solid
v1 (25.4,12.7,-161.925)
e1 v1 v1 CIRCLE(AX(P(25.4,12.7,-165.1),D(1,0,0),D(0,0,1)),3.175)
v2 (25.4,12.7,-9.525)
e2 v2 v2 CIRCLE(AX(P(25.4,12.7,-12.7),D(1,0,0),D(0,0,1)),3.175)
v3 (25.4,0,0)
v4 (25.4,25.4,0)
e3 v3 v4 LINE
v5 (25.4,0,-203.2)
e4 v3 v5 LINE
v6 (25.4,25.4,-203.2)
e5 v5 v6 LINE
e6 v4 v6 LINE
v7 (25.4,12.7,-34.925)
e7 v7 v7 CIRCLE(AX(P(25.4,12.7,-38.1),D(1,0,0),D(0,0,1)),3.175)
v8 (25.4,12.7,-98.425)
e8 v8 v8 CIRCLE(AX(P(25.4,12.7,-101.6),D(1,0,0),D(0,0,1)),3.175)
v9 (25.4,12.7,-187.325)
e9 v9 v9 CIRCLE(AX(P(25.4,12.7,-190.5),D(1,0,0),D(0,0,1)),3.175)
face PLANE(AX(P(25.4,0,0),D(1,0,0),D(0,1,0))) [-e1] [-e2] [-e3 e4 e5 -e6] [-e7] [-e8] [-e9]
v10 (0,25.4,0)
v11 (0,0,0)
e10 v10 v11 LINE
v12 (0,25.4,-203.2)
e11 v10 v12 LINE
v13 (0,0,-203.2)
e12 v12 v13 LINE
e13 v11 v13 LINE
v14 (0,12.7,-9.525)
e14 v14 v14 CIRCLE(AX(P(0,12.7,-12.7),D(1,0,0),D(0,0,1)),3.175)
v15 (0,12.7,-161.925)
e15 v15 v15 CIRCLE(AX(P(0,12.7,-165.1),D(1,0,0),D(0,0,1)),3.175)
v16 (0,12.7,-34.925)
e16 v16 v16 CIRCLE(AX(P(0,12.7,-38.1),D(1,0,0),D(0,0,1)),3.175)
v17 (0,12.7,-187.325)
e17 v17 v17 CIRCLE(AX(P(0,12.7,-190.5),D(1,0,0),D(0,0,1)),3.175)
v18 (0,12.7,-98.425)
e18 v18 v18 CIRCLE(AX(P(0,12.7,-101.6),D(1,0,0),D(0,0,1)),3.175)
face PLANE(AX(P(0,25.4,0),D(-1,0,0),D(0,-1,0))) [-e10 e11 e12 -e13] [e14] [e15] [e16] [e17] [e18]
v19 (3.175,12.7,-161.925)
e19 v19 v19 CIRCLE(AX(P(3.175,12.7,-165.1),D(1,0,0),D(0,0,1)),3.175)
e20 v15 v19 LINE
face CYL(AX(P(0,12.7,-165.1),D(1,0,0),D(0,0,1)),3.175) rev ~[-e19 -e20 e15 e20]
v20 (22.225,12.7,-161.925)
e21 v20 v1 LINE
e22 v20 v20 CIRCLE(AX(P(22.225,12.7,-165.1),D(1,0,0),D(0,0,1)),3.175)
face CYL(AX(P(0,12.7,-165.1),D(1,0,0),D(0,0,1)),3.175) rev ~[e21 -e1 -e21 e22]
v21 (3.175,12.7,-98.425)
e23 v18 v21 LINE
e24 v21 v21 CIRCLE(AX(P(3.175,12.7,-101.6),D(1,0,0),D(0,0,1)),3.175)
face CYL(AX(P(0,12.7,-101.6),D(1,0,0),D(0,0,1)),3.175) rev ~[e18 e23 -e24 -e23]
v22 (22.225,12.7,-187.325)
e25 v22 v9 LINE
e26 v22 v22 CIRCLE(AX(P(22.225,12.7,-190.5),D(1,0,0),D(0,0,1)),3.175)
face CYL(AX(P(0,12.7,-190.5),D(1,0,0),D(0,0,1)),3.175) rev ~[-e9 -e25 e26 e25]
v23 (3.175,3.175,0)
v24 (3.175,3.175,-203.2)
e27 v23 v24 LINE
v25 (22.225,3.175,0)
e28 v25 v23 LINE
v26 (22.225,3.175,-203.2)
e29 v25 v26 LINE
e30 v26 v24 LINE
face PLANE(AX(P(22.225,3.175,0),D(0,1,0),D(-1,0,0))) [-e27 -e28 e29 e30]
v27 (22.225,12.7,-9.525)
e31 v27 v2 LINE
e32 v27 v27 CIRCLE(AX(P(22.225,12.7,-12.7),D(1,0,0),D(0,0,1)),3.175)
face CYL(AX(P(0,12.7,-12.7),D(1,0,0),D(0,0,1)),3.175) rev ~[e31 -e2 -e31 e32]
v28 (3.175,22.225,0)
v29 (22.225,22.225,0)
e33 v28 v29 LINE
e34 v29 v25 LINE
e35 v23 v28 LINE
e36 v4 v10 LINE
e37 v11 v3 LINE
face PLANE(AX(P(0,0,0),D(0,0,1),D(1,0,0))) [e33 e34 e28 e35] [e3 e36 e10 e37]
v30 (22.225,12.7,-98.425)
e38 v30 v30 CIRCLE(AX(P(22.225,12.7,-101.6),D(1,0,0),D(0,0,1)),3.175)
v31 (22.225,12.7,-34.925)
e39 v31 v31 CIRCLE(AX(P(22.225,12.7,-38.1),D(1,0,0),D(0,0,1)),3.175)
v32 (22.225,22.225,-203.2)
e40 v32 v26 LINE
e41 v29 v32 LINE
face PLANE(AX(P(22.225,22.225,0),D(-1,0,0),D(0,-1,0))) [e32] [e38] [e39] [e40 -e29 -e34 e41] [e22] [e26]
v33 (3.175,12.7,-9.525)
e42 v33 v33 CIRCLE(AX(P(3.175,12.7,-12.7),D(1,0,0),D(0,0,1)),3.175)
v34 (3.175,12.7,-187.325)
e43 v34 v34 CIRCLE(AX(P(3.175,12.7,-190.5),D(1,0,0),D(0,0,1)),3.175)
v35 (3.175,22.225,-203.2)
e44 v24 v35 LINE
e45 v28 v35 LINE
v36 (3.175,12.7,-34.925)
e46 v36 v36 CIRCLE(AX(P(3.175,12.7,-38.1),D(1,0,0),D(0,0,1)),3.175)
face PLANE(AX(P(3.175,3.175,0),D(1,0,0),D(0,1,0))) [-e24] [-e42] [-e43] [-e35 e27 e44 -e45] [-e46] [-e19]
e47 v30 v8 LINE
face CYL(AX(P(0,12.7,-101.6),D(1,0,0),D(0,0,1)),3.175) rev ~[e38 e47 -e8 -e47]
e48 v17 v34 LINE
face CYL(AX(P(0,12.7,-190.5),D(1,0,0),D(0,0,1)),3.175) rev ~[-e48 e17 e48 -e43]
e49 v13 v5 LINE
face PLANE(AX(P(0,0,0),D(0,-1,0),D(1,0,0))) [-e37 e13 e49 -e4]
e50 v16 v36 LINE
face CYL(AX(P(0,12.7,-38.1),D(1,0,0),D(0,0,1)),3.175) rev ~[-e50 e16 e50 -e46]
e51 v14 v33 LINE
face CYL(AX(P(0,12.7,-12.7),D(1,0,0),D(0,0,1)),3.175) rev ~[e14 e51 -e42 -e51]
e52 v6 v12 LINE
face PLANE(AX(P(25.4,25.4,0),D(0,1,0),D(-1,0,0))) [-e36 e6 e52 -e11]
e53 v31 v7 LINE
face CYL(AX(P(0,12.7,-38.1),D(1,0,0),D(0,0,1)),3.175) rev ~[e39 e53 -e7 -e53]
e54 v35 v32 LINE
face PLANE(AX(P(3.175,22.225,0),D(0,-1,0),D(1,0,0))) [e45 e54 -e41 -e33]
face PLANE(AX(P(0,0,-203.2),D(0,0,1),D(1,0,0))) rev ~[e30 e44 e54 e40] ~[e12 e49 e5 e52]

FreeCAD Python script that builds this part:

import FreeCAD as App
import Part
import Sketcher

V = App.Vector
Q = App.Units.Quantity

doc = App.newDocument("Part")
body = doc.addObject("PartDesign::Body", "Body")

# Sketch on XY plane
sketch1 = doc.addObject("Sketcher::SketchObject", "Sketch")
body.addObject(sketch1)
sketch1.AttachmentSupport = (doc.XY_Plane, [""])
sketch1.MapMode = "FlatFace"
sketch1.addGeometry(Part.LineSegment(V(0, 25, 0), V(0, 0, 0)), False)
sketch1.addGeometry(Part.LineSegment(V(0, 0, 0), V(25, 0, 0)), False)
sketch1.addGeometry(Part.LineSegment(V(25, 0, 0), V(25, 25, 0)), False)
sketch1.addGeometry(Part.LineSegment(V(25, 25, 0), V(0, 25, 0)), False)
sketch1.addGeometry(Part.LineSegment(V(3, 3, 0), V(3, 22, 0)), False)
sketch1.addGeometry(Part.LineSegment(V(3, 22, 0), V(22, 22, 0)), False)
sketch1.addGeometry(Part.LineSegment(V(22, 22, 0), V(22, 3, 0)), False)
sketch1.addGeometry(Part.LineSegment(V(22, 3, 0), V(3, 3, 0)), False)
sketch1.addConstraint(Sketcher.Constraint("Coincident", 0, 2, 1, 1))
sketch1.addConstraint(Sketcher.Constraint("Coincident", 1, 2, 2, 1))
sketch1.addConstraint(Sketcher.Constraint("Coincident", 2, 2, 3, 1))
sketch1.addConstraint(Sketcher.Constraint("Coincident", 3, 2, 0, 1))
sketch1.addConstraint(Sketcher.Constraint("Coincident", 4, 2, 5, 1))
sketch1.addConstraint(Sketcher.Constraint("Coincident", 5, 2, 6, 1))
sketch1.addConstraint(Sketcher.Constraint("Coincident", 6, 2, 7, 1))
sketch1.addConstraint(Sketcher.Constraint("Coincident", 7, 2, 4, 1))
sketch1.addConstraint(Sketcher.Constraint("Vertical", 0))
sketch1.addConstraint(Sketcher.Constraint("Horizontal", 1))
sketch1.addConstraint(Sketcher.Constraint("Vertical", 2))
sketch1.addConstraint(Sketcher.Constraint("Horizontal", 3))
sketch1.addConstraint(Sketcher.Constraint("Vertical", 4))
sketch1.addConstraint(Sketcher.Constraint("Horizontal", 5))
sketch1.addConstraint(Sketcher.Constraint("Vertical", 6))
sketch1.addConstraint(Sketcher.Constraint("Horizontal", 7))
sketch1.addConstraint(Sketcher.Constraint("Coincident", 0, 2, -1, 1))
sketch1.addConstraint(Sketcher.Constraint("Equal", 3, 0))
sketch1.addConstraint(Sketcher.Constraint("Equal", 7, 4))
sketch1.addConstraint(Sketcher.Constraint("DistanceX", 1, 1, 1, 2, Q("1 in")))
sketch1.addConstraint(Sketcher.Constraint("DistanceX", -1, 1, 4, 2, Q("0.125 in")))
sketch1.addConstraint(Sketcher.Constraint("DistanceY", -1, 1, 6, 2, Q("0.125 in")))
sketch1.addConstraint(Sketcher.Constraint("DistanceY", 4, 2, 3, 2, Q("0.125 in")))
pad1 = doc.addObject("PartDesign::Pad", "Pad")
body.addObject(pad1)
pad1.Profile = sketch1
pad1.Length = Q("8 in")
pad1.Reversed = True

# Sketch on YZ plane
sketch2 = doc.addObject("Sketcher::SketchObject", "Sketch001")
body.addObject(sketch2)
sketch2.AttachmentSupport = (doc.YZ_Plane, [""])
sketch2.MapMode = "FlatFace"
sketch2.addGeometry(Part.Circle(V(12.7, -190.5, 0), V(0, 0, 1), 3.2), False)
sketch2.addGeometry(Part.Circle(V(12.7, -165.1, 0), V(0, 0, 1), 3.2), False)
sketch2.addGeometry(Part.Circle(V(12.7, -38.1, 0), V(0, 0, 1), 3.2), False)
sketch2.addGeometry(Part.Circle(V(12.7, -12.7, 0), V(0, 0, 1), 3.2), False)
sketch2.addGeometry(Part.Circle(V(12.7, -101.6, 0), V(0, 0, 1), 3.2), False)
sketch2.addConstraint(Sketcher.Constraint("Equal", 0, 1))
sketch2.addConstraint(Sketcher.Constraint("Equal", 1, 2))
sketch2.addConstraint(Sketcher.Constraint("Equal", 2, 3))
sketch2.addConstraint(Sketcher.Constraint("Equal", 3, 4))
sketch2.addConstraint(Sketcher.Constraint("Vertical", 0, 3, 1, 3))
sketch2.addConstraint(Sketcher.Constraint("Vertical", 1, 3, 2, 3))
sketch2.addConstraint(Sketcher.Constraint("Vertical", 2, 3, 3, 3))
sketch2.addConstraint(Sketcher.Constraint("Vertical", 3, 3, 4, 3))
sketch2.addConstraint(Sketcher.Constraint("Diameter", 0, Q("0.25 in")))
sketch2.addConstraint(Sketcher.Constraint("DistanceY", 4, 3, -1, 1, Q("4 in")))
sketch2.addConstraint(Sketcher.Constraint("DistanceY", 0, 3, 1, 3, Q("1 in")))
sketch2.addConstraint(Sketcher.Constraint("DistanceY", 1, 3, 2, 3, Q("5 in")))
sketch2.addConstraint(Sketcher.Constraint("DistanceY", 2, 3, 3, 3, Q("1 in")))
sketch2.addConstraint(Sketcher.Constraint("DistanceX", -1, 1, 0, 3, Q("0.5 in")))
sketch2.addConstraint(Sketcher.Constraint("DistanceY", 0, 3, -1, 1, Q("7.5 in")))
doc.recompute()
hole = doc.addObject("PartDesign::Hole", "Hole")
body.addObject(hole)
hole.Profile = sketch2
hole.ThreadType = "None"
hole.Diameter = Q("0.25 in")
hole.DepthType = "Dimension"
hole.Depth = Q("1 in")
hole.DrillPoint = "Angled"
hole.DrillPointAngle = 118
hole.Reversed = True

doc.recompute()
